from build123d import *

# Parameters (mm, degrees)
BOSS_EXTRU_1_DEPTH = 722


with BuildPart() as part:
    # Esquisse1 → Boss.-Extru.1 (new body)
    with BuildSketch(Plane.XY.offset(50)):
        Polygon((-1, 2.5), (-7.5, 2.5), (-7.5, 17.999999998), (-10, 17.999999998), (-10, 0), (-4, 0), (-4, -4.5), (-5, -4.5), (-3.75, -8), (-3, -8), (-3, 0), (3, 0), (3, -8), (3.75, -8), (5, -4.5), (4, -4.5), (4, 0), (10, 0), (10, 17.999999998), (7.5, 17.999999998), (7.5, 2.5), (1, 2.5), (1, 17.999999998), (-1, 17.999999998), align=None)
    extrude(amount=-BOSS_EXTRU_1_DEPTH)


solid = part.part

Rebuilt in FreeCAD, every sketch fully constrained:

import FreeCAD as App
import Part
import Sketcher
from FreeCAD import Vector


def add_polygon(sketch, points):
    """Adds a closed chain of lines whose ends are joined by coincident constraints."""
    first, n = sketch.GeometryCount, len(points)
    for a, b in zip(points, points[1:] + points[:1]):
        sketch.addGeometry(Part.LineSegment(App.Vector(*a, 0), App.Vector(*b, 0)), False)
    for i in range(n):
        sketch.addConstraint(Sketcher.Constraint("Coincident", first + i, 2, first + (i + 1) % n, 1))

doc = App.newDocument("Part")
body = doc.addObject("PartDesign::Body", "Body")

sketch1 = body.newObject("Sketcher::SketchObject", "Sketch")
sketch1.AttachmentSupport = (doc.getObject("XY_Plane"), [""])
sketch1.MapMode = "FlatFace"
sketch1.AttachmentOffset = App.Placement(Vector(0, 0, 50), App.Rotation())
add_polygon(sketch1, [(-1, 2.5), (-7.5, 2.5), (-7.5, 18), (-10, 18), (-10, 0), (-4, 0), (-4, -4.5), (-5, -4.5), (-3.8, -8), (-3, -8), (-3, 0), (3, 0), (3, -8), (3.8, -8), (5, -4.5), (4, -4.5), (4, 0), (10, 0), (10, 18), (7.5, 18), (7.5, 2.5), (1, 2.5), (1, 18), (-1, 18)])
sketch1.addConstraint([
    Sketcher.Constraint("Horizontal", 0),
    Sketcher.Constraint("Vertical", 1),
    Sketcher.Constraint("Horizontal", 2),
    Sketcher.Constraint("Vertical", 3),
    Sketcher.Constraint("Horizontal", 4),
    Sketcher.Constraint("Vertical", 5),
    Sketcher.Constraint("Horizontal", 6),
    Sketcher.Constraint("Horizontal", 8),
    Sketcher.Constraint("Vertical", 9),
    Sketcher.Constraint("Horizontal", 10),
    Sketcher.Constraint("Vertical", 11),
    Sketcher.Constraint("Horizontal", 12),
    Sketcher.Constraint("Horizontal", 14),
    Sketcher.Constraint("Vertical", 15),
    Sketcher.Constraint("Horizontal", 16),
    Sketcher.Constraint("Vertical", 17),
    Sketcher.Constraint("Horizontal", 18),
    Sketcher.Constraint("Vertical", 19),
    Sketcher.Constraint("Horizontal", 20),
    Sketcher.Constraint("Vertical", 21),
    Sketcher.Constraint("Horizontal", 22),
    Sketcher.Constraint("Vertical", 23),
    Sketcher.Constraint("Symmetric", 9, 2, 10, 2, -1, 1),
    Sketcher.Constraint("Symmetric", 4, 2, 15, 2, -1, 1),
    Sketcher.Constraint("Symmetric", 7, 2, 12, 2, -2),
    Sketcher.Constraint("Symmetric", 6, 2, 13, 2, -2),
    Sketcher.Constraint("Symmetric", 3, 2, 16, 2, -2),
    Sketcher.Constraint("Symmetric", 1, 2, 18, 2, -2),
    Sketcher.Constraint("Symmetric", 20, 2, 23, 2, -2),
    Sketcher.Constraint("Horizontal", 18, 2, 21, 2),
    Sketcher.Constraint("Equal", 4, 10),
    Sketcher.Constraint("DistanceX", 4, 1, 4, 2, 6.0),
    Sketcher.Constraint("DistanceX", 6, 2, 6, 1, 1.0),
    Sketcher.Constraint("DistanceX", 22, 2, 22, 1, 2.0),
    Sketcher.Constraint("DistanceY", 3, 2, 3, 1, 18.0),
    Sketcher.Constraint("DistanceY", 9, 1, 9, 2, 8.0),
    Sketcher.Constraint("DistanceX", 0, 2, 0, 1, 6.5),
    Sketcher.Constraint("DistanceX", 2, 2, 2, 1, 2.5),
    Sketcher.Constraint("DistanceY", 1, 1, 1, 2, 15.5),
    Sketcher.Constraint("DistanceY", 5, 2, 5, 1, 4.5),
    Sketcher.Constraint("DistanceX", 8, 1, 8, 2, 0.75),
])
pad1 = body.newObject("PartDesign::Pad", "Pad")
pad1.Profile = sketch1
pad1.Length = 722
pad1.Reversed = True

doc.recompute()
